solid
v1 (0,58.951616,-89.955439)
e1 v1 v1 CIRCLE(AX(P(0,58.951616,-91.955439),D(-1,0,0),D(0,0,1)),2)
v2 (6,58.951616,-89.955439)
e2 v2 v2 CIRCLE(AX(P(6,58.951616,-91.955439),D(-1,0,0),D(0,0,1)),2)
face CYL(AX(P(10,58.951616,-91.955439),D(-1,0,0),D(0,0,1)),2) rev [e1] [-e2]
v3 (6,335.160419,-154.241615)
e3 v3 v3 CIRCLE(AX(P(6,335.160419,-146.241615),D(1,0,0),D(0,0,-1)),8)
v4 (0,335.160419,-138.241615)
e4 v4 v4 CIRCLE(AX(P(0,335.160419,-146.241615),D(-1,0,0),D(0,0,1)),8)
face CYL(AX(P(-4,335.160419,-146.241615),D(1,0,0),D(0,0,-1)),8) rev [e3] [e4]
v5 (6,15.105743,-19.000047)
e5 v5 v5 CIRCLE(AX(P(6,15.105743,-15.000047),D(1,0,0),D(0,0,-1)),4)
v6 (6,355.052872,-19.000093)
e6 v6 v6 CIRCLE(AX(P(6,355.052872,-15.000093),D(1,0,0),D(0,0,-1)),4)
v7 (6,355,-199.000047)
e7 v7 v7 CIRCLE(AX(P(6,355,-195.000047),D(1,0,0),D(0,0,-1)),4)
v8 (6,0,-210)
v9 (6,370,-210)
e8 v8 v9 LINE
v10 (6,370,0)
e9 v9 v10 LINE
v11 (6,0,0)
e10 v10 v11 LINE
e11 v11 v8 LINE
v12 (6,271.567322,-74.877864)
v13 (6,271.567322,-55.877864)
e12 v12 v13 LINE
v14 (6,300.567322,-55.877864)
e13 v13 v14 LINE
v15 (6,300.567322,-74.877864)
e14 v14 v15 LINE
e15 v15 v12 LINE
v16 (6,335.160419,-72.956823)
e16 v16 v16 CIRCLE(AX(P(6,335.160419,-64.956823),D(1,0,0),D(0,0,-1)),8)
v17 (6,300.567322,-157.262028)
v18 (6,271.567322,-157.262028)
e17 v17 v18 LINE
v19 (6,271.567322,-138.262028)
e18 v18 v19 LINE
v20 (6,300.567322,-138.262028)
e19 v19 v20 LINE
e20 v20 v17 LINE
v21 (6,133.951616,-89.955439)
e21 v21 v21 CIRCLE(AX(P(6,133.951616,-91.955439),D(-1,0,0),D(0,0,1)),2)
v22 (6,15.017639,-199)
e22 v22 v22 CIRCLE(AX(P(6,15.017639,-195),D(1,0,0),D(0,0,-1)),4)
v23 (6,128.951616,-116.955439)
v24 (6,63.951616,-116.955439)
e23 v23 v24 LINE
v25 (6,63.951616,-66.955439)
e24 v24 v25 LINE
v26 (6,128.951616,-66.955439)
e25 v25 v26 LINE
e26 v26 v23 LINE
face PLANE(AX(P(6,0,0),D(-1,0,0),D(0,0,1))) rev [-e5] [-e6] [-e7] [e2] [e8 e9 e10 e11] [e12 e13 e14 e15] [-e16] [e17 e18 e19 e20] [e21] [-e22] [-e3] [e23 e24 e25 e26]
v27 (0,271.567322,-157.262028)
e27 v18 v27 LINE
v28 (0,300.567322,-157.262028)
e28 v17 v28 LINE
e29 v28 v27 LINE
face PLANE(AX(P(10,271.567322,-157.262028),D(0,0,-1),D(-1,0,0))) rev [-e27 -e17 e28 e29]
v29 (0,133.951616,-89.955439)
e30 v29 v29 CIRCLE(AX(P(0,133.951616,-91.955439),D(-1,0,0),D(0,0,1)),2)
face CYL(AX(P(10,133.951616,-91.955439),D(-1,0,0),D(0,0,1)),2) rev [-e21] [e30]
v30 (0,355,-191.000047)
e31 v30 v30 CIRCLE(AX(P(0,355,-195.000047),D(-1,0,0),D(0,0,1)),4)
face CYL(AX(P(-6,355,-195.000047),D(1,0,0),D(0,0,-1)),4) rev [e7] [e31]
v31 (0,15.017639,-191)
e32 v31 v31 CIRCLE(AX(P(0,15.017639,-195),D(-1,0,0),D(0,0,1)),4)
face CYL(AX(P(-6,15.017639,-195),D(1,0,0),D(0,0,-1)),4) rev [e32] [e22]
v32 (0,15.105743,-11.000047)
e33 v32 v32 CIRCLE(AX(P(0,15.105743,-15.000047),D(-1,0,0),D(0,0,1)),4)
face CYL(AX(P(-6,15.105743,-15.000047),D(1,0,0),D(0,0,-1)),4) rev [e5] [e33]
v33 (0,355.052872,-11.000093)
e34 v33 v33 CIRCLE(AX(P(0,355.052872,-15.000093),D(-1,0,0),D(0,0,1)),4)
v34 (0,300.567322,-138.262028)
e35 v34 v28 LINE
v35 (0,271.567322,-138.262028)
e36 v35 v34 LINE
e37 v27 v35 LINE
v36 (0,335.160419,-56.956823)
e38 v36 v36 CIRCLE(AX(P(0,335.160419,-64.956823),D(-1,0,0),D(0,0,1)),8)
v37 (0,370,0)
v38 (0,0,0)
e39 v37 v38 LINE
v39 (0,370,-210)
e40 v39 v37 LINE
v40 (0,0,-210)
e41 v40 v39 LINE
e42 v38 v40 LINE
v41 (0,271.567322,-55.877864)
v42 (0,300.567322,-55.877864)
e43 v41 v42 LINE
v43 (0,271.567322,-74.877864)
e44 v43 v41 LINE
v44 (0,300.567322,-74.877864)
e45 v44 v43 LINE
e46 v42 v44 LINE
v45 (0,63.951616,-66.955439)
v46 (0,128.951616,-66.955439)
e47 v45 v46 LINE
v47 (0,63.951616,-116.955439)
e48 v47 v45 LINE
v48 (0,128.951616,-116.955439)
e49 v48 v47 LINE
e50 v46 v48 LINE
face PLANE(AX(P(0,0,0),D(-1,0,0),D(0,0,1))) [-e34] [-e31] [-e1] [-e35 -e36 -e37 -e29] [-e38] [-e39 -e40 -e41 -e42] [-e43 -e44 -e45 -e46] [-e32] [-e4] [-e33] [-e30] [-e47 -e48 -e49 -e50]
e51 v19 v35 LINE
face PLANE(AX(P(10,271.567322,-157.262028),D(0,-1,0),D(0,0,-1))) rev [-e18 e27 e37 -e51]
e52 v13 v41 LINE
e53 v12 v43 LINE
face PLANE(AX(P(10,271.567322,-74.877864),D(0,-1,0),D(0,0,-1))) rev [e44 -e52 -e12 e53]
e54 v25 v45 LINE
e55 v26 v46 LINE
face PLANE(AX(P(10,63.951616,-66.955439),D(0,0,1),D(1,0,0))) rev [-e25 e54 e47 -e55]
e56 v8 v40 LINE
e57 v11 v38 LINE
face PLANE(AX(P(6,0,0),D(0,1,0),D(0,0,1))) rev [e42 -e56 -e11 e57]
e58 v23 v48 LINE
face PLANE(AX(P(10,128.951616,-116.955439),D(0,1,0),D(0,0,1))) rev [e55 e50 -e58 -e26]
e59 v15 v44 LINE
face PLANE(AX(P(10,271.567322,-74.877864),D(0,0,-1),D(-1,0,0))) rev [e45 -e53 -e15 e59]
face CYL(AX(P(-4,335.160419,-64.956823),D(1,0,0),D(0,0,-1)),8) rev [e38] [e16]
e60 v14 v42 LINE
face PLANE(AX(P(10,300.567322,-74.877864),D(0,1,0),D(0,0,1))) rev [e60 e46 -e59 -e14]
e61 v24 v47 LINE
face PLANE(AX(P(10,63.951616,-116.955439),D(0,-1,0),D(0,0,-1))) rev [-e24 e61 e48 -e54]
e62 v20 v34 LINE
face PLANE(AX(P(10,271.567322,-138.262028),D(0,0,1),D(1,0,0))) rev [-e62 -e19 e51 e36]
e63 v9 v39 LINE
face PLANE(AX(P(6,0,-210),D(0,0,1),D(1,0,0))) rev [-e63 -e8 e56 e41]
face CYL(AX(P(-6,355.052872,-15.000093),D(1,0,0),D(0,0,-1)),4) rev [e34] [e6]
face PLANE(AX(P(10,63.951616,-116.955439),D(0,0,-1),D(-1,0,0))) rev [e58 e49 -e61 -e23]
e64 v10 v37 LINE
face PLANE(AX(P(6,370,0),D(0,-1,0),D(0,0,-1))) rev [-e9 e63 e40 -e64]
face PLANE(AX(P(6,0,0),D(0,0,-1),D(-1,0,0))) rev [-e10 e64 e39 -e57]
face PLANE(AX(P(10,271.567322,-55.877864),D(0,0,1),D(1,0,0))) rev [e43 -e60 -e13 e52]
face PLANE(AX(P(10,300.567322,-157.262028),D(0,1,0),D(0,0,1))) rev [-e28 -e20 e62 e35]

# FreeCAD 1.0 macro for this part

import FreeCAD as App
import Part
import Sketcher

doc = App.newDocument("Part")
params = doc.addObject("Spreadsheet::Sheet", "Params")
for row, (alias, value) in enumerate([
    ("sketch1_width", "370 mm"),
    ("sketch1_height", "210 mm"),
    ("pad1_length", "6 mm"),
    ("sketch2_width", "65 mm"),
    ("sketch2_width2", "29 mm"),
    ("sketch2_height", "50 mm"),
    ("sketch2_height2", "19 mm"),
    ("pocket1_length", "10 mm"),
    ("sketch3_diameter", "4 mm"),
    ("pocket2_length", "10 mm"),
    ("sketch4_diameter", "16 mm"),
    ("pocket3_length", "10 mm"),
    ("sketch5_diameter", "8 mm"),
    ("pocket4_length", "12 mm"),
], start=1):
    params.set(f"A{row}", alias)
    params.set(f"B{row}", "=" + value)
    params.setAlias(f"B{row}", alias)

body = doc.addObject("PartDesign::Body", "Body")

# Sketch on YZ plane
sketch1 = doc.addObject("Sketcher::SketchObject", "Sketch")
body.addObject(sketch1)
sketch1.AttachmentSupport = (doc.YZ_Plane, [""])
sketch1.MapMode = "FlatFace"
sketch1.addGeometry([
    Part.LineSegment(App.Vector(370, 0, 0), App.Vector(0, 0, 0)),
    Part.LineSegment(App.Vector(0, 0, 0), App.Vector(0, -210, 0)),
    Part.LineSegment(App.Vector(0, -210, 0), App.Vector(370, -210, 0)),
    Part.LineSegment(App.Vector(370, -210, 0), App.Vector(370, 0, 0)),
], False)
sketch1.addConstraint([
    Sketcher.Constraint("Coincident", 0, 2, 1, 1),
    Sketcher.Constraint("Coincident", 1, 2, 2, 1),
    Sketcher.Constraint("Coincident", 2, 2, 3, 1),
    Sketcher.Constraint("Coincident", 3, 2, 0, 1),
    Sketcher.Constraint("Horizontal", 0),
    Sketcher.Constraint("Vertical", 1),
    Sketcher.Constraint("Horizontal", 2),
    Sketcher.Constraint("Vertical", 3),
    Sketcher.Constraint("Coincident", 0, 2, -1, 1),
    Sketcher.Constraint("DistanceX", 0, 2, 0, 1, 370.0),
    Sketcher.Constraint("DistanceY", 1, 2, 1, 1, 210.0),
])
sketch1.setExpression("Constraints[9]", "Params.sketch1_width")
sketch1.setExpression("Constraints[10]", "Params.sketch1_height")
pad1 = doc.addObject("PartDesign::Pad", "Pad")
body.addObject(pad1)
pad1.Profile = sketch1
pad1.setExpression("Length", "Params.pad1_length")

# Sketch on YZ plane
sketch2 = doc.addObject("Sketcher::SketchObject", "Sketch001")
body.addObject(sketch2)
sketch2.AttachmentSupport = (doc.YZ_Plane, [""])
sketch2.MapMode = "FlatFace"
sketch2.addGeometry([
    Part.LineSegment(App.Vector(129, -117, 0), App.Vector(64, -117, 0)),  # 0
    Part.LineSegment(App.Vector(64, -117, 0), App.Vector(64, -67, 0)),  # 1
    Part.LineSegment(App.Vector(64, -67, 0), App.Vector(129, -67, 0)),  # 2
    Part.LineSegment(App.Vector(129, -67, 0), App.Vector(129, -117, 0)),  # 3
    Part.LineSegment(App.Vector(301, -157, 0), App.Vector(272, -157, 0)),  # 4
    Part.LineSegment(App.Vector(272, -157, 0), App.Vector(272, -138, 0)),  # 5
    Part.LineSegment(App.Vector(272, -138, 0), App.Vector(301, -138, 0)),  # 6
    Part.LineSegment(App.Vector(301, -138, 0), App.Vector(301, -157, 0)),  # 7
    Part.LineSegment(App.Vector(301, -75, 0), App.Vector(272, -75, 0)),  # 8
    Part.LineSegment(App.Vector(272, -75, 0), App.Vector(272, -56, 0)),  # 9
    Part.LineSegment(App.Vector(272, -56, 0), App.Vector(301, -56, 0)),  # 10
    Part.LineSegment(App.Vector(301, -56, 0), App.Vector(301, -75, 0)),  # 11
], False)
sketch2.addConstraint([
    Sketcher.Constraint("Coincident", 0, 2, 1, 1),
    Sketcher.Constraint("Coincident", 1, 2, 2, 1),
    Sketcher.Constraint("Coincident", 2, 2, 3, 1),
    Sketcher.Constraint("Coincident", 3, 2, 0, 1),
    Sketcher.Constraint("Coincident", 4, 2, 5, 1),
    Sketcher.Constraint("Coincident", 5, 2, 6, 1),
    Sketcher.Constraint("Coincident", 6, 2, 7, 1),
    Sketcher.Constraint("Coincident", 7, 2, 4, 1),
    Sketcher.Constraint("Coincident", 8, 2, 9, 1),
    Sketcher.Constraint("Coincident", 9, 2, 10, 1),
    Sketcher.Constraint("Coincident", 10, 2, 11, 1),
    Sketcher.Constraint("Coincident", 11, 2, 8, 1),
    Sketcher.Constraint("Horizontal", 0),
    Sketcher.Constraint("Vertical", 1),
    Sketcher.Constraint("Horizontal", 2),
    Sketcher.Constraint("Vertical", 3),
    Sketcher.Constraint("Horizontal", 4),
    Sketcher.Constraint("Vertical", 5),
    Sketcher.Constraint("Horizontal", 6),
    Sketcher.Constraint("Vertical", 7),
    Sketcher.Constraint("Horizontal", 8),
    Sketcher.Constraint("Vertical", 9),
    Sketcher.Constraint("Horizontal", 10),
    Sketcher.Constraint("Vertical", 11),
    Sketcher.Constraint("Vertical", 5, 2, 8, 2),
    Sketcher.Constraint("Vertical", 7, 2, 10, 2),
    Sketcher.Constraint("Equal", 7, 9),
    Sketcher.Constraint("DistanceX", 0, 2, 0, 1, 65.0),
    Sketcher.Constraint("DistanceX", 4, 2, 4, 1, 29.0),
    Sketcher.Constraint("DistanceY", 1, 1, 1, 2, 50.0),
    Sketcher.Constraint("DistanceY", 5, 1, 5, 2, 19.0),
    Sketcher.Constraint("DistanceY", 0, 2, -1, 1, 116.955439),
    Sketcher.Constraint("DistanceX", -1, 1, 4, 2, 271.567322),
    Sketcher.Constraint("DistanceY", 4, 2, -1, 1, 157.262028),
    Sketcher.Constraint("DistanceX", -1, 1, 0, 2, 63.951616),
    Sketcher.Constraint("DistanceY", 8, 2, -1, 1, 74.877864),
])
sketch2.setExpression("Constraints[27]", "Params.sketch2_width")
sketch2.setExpression("Constraints[28]", "Params.sketch2_width2")
sketch2.setExpression("Constraints[29]", "Params.sketch2_height")
sketch2.setExpression("Constraints[30]", "Params.sketch2_height2")
pocket1 = doc.addObject("PartDesign::Pocket", "Pocket")
body.addObject(pocket1)
pocket1.Profile = sketch2
pocket1.setExpression("Length", "Params.pocket1_length")
pocket1.Reversed = True

# Sketch on YZ plane
sketch3 = doc.addObject("Sketcher::SketchObject", "Sketch002")
body.addObject(sketch3)
sketch3.AttachmentSupport = (doc.YZ_Plane, [""])
sketch3.MapMode = "FlatFace"
sketch3.addGeometry([
    Part.Circle(App.Vector(134, -92, 0), App.Vector(0, 0, 1), 2),
    Part.Circle(App.Vector(59, -92, 0), App.Vector(0, 0, 1), 2),
], False)
sketch3.addConstraint([
    Sketcher.Constraint("Equal", 0, 1),
    Sketcher.Constraint("Horizontal", 0, 3, 1, 3),
    Sketcher.Constraint("Diameter", 0, 4.0),
    Sketcher.Constraint("DistanceX", 1, 3, 0, 3, 75.0),
    Sketcher.Constraint("DistanceY", 0, 3, -1, 1, 91.955439),
    Sketcher.Constraint("DistanceX", -1, 1, 0, 3, 133.951616),
])
sketch3.setExpression("Constraints[2]", "Params.sketch3_diameter")
pocket2 = doc.addObject("PartDesign::Pocket", "Pocket001")
body.addObject(pocket2)
pocket2.Profile = sketch3
pocket2.setExpression("Length", "Params.pocket2_length")
pocket2.Reversed = True

# Sketch on YZ plane
sketch4 = doc.addObject("Sketcher::SketchObject", "Sketch003")
body.addObject(sketch4)
sketch4.AttachmentSupport = (doc.YZ_Plane, [""])
sketch4.MapMode = "FlatFace"
sketch4.AttachmentOffset = App.Placement(App.Vector(0, 0, 6), App.Rotation())
sketch4.addGeometry([
    Part.Circle(App.Vector(335, -146, 0), App.Vector(0, 0, 1), 8),
    Part.Circle(App.Vector(335, -65, 0), App.Vector(0, 0, 1), 8),
], False)
sketch4.addConstraint([
    Sketcher.Constraint("Equal", 0, 1),
    Sketcher.Constraint("Vertical", 0, 3, 1, 3),
    Sketcher.Constraint("Diameter", 0, 16.0),
    Sketcher.Constraint("DistanceX", -1, 1, 0, 3, 335.160419),
    Sketcher.Constraint("DistanceY", 0, 3, 1, 3, 81.284791),
    Sketcher.Constraint("DistanceY", 0, 3, -1, 1, 146.241615),
])
sketch4.setExpression("Constraints[2]", "Params.sketch4_diameter")
pocket3 = doc.addObject("PartDesign::Pocket", "Pocket002")
body.addObject(pocket3)
pocket3.Profile = sketch4
pocket3.setExpression("Length", "Params.pocket3_length")

# Sketch on YZ plane
sketch5 = doc.addObject("Sketcher::SketchObject", "Sketch004")
body.addObject(sketch5)
sketch5.AttachmentSupport = (doc.YZ_Plane, [""])
sketch5.MapMode = "FlatFace"
sketch5.AttachmentOffset = App.Placement(App.Vector(0, 0, 6), App.Rotation())
sketch5.addGeometry([
    Part.Circle(App.Vector(15.1, -15, 0), App.Vector(0, 0, 1), 4),
    Part.Circle(App.Vector(355.1, -15, 0), App.Vector(0, 0, 1), 4),
    Part.Circle(App.Vector(355, -195, 0), App.Vector(0, 0, 1), 4),
    Part.Circle(App.Vector(15, -195, 0), App.Vector(0, 0, 1), 4),
], False)
sketch5.addConstraint([
    Sketcher.Constraint("Equal", 0, 1),
    Sketcher.Constraint("Equal", 1, 2),
    Sketcher.Constraint("Equal", 2, 3),
    Sketcher.Constraint("Diameter", 0, 8.0),
    Sketcher.Constraint("DistanceX", -1, 1, 2, 3, 355.0),
    Sketcher.Constraint("DistanceY", 3, 3, -1, 1, 195.0),
    Sketcher.Constraint("DistanceY", 2, 3, 0, 3, 180.0),
    Sketcher.Constraint("DistanceX", -1, 1, 1, 3, 355.052872),
    Sketcher.Constraint("DistanceX", -1, 1, 3, 3, 15.017639),
    Sketcher.Constraint("DistanceX", 0, 3, 1, 3, 339.947128),
    Sketcher.Constraint("DistanceY", 0, 3, -1, 1, 15.000047),
    Sketcher.Constraint("DistanceY", 1, 3, -1, 1, 15.000093),
])
sketch5.setExpression("Constraints[3]", "Params.sketch5_diameter")
pocket4 = doc.addObject("PartDesign::Pocket", "Pocket003")
body.addObject(pocket4)
pocket4.Profile = sketch5
pocket4.setExpression("Length", "Params.pocket4_length")

doc.recompute()
